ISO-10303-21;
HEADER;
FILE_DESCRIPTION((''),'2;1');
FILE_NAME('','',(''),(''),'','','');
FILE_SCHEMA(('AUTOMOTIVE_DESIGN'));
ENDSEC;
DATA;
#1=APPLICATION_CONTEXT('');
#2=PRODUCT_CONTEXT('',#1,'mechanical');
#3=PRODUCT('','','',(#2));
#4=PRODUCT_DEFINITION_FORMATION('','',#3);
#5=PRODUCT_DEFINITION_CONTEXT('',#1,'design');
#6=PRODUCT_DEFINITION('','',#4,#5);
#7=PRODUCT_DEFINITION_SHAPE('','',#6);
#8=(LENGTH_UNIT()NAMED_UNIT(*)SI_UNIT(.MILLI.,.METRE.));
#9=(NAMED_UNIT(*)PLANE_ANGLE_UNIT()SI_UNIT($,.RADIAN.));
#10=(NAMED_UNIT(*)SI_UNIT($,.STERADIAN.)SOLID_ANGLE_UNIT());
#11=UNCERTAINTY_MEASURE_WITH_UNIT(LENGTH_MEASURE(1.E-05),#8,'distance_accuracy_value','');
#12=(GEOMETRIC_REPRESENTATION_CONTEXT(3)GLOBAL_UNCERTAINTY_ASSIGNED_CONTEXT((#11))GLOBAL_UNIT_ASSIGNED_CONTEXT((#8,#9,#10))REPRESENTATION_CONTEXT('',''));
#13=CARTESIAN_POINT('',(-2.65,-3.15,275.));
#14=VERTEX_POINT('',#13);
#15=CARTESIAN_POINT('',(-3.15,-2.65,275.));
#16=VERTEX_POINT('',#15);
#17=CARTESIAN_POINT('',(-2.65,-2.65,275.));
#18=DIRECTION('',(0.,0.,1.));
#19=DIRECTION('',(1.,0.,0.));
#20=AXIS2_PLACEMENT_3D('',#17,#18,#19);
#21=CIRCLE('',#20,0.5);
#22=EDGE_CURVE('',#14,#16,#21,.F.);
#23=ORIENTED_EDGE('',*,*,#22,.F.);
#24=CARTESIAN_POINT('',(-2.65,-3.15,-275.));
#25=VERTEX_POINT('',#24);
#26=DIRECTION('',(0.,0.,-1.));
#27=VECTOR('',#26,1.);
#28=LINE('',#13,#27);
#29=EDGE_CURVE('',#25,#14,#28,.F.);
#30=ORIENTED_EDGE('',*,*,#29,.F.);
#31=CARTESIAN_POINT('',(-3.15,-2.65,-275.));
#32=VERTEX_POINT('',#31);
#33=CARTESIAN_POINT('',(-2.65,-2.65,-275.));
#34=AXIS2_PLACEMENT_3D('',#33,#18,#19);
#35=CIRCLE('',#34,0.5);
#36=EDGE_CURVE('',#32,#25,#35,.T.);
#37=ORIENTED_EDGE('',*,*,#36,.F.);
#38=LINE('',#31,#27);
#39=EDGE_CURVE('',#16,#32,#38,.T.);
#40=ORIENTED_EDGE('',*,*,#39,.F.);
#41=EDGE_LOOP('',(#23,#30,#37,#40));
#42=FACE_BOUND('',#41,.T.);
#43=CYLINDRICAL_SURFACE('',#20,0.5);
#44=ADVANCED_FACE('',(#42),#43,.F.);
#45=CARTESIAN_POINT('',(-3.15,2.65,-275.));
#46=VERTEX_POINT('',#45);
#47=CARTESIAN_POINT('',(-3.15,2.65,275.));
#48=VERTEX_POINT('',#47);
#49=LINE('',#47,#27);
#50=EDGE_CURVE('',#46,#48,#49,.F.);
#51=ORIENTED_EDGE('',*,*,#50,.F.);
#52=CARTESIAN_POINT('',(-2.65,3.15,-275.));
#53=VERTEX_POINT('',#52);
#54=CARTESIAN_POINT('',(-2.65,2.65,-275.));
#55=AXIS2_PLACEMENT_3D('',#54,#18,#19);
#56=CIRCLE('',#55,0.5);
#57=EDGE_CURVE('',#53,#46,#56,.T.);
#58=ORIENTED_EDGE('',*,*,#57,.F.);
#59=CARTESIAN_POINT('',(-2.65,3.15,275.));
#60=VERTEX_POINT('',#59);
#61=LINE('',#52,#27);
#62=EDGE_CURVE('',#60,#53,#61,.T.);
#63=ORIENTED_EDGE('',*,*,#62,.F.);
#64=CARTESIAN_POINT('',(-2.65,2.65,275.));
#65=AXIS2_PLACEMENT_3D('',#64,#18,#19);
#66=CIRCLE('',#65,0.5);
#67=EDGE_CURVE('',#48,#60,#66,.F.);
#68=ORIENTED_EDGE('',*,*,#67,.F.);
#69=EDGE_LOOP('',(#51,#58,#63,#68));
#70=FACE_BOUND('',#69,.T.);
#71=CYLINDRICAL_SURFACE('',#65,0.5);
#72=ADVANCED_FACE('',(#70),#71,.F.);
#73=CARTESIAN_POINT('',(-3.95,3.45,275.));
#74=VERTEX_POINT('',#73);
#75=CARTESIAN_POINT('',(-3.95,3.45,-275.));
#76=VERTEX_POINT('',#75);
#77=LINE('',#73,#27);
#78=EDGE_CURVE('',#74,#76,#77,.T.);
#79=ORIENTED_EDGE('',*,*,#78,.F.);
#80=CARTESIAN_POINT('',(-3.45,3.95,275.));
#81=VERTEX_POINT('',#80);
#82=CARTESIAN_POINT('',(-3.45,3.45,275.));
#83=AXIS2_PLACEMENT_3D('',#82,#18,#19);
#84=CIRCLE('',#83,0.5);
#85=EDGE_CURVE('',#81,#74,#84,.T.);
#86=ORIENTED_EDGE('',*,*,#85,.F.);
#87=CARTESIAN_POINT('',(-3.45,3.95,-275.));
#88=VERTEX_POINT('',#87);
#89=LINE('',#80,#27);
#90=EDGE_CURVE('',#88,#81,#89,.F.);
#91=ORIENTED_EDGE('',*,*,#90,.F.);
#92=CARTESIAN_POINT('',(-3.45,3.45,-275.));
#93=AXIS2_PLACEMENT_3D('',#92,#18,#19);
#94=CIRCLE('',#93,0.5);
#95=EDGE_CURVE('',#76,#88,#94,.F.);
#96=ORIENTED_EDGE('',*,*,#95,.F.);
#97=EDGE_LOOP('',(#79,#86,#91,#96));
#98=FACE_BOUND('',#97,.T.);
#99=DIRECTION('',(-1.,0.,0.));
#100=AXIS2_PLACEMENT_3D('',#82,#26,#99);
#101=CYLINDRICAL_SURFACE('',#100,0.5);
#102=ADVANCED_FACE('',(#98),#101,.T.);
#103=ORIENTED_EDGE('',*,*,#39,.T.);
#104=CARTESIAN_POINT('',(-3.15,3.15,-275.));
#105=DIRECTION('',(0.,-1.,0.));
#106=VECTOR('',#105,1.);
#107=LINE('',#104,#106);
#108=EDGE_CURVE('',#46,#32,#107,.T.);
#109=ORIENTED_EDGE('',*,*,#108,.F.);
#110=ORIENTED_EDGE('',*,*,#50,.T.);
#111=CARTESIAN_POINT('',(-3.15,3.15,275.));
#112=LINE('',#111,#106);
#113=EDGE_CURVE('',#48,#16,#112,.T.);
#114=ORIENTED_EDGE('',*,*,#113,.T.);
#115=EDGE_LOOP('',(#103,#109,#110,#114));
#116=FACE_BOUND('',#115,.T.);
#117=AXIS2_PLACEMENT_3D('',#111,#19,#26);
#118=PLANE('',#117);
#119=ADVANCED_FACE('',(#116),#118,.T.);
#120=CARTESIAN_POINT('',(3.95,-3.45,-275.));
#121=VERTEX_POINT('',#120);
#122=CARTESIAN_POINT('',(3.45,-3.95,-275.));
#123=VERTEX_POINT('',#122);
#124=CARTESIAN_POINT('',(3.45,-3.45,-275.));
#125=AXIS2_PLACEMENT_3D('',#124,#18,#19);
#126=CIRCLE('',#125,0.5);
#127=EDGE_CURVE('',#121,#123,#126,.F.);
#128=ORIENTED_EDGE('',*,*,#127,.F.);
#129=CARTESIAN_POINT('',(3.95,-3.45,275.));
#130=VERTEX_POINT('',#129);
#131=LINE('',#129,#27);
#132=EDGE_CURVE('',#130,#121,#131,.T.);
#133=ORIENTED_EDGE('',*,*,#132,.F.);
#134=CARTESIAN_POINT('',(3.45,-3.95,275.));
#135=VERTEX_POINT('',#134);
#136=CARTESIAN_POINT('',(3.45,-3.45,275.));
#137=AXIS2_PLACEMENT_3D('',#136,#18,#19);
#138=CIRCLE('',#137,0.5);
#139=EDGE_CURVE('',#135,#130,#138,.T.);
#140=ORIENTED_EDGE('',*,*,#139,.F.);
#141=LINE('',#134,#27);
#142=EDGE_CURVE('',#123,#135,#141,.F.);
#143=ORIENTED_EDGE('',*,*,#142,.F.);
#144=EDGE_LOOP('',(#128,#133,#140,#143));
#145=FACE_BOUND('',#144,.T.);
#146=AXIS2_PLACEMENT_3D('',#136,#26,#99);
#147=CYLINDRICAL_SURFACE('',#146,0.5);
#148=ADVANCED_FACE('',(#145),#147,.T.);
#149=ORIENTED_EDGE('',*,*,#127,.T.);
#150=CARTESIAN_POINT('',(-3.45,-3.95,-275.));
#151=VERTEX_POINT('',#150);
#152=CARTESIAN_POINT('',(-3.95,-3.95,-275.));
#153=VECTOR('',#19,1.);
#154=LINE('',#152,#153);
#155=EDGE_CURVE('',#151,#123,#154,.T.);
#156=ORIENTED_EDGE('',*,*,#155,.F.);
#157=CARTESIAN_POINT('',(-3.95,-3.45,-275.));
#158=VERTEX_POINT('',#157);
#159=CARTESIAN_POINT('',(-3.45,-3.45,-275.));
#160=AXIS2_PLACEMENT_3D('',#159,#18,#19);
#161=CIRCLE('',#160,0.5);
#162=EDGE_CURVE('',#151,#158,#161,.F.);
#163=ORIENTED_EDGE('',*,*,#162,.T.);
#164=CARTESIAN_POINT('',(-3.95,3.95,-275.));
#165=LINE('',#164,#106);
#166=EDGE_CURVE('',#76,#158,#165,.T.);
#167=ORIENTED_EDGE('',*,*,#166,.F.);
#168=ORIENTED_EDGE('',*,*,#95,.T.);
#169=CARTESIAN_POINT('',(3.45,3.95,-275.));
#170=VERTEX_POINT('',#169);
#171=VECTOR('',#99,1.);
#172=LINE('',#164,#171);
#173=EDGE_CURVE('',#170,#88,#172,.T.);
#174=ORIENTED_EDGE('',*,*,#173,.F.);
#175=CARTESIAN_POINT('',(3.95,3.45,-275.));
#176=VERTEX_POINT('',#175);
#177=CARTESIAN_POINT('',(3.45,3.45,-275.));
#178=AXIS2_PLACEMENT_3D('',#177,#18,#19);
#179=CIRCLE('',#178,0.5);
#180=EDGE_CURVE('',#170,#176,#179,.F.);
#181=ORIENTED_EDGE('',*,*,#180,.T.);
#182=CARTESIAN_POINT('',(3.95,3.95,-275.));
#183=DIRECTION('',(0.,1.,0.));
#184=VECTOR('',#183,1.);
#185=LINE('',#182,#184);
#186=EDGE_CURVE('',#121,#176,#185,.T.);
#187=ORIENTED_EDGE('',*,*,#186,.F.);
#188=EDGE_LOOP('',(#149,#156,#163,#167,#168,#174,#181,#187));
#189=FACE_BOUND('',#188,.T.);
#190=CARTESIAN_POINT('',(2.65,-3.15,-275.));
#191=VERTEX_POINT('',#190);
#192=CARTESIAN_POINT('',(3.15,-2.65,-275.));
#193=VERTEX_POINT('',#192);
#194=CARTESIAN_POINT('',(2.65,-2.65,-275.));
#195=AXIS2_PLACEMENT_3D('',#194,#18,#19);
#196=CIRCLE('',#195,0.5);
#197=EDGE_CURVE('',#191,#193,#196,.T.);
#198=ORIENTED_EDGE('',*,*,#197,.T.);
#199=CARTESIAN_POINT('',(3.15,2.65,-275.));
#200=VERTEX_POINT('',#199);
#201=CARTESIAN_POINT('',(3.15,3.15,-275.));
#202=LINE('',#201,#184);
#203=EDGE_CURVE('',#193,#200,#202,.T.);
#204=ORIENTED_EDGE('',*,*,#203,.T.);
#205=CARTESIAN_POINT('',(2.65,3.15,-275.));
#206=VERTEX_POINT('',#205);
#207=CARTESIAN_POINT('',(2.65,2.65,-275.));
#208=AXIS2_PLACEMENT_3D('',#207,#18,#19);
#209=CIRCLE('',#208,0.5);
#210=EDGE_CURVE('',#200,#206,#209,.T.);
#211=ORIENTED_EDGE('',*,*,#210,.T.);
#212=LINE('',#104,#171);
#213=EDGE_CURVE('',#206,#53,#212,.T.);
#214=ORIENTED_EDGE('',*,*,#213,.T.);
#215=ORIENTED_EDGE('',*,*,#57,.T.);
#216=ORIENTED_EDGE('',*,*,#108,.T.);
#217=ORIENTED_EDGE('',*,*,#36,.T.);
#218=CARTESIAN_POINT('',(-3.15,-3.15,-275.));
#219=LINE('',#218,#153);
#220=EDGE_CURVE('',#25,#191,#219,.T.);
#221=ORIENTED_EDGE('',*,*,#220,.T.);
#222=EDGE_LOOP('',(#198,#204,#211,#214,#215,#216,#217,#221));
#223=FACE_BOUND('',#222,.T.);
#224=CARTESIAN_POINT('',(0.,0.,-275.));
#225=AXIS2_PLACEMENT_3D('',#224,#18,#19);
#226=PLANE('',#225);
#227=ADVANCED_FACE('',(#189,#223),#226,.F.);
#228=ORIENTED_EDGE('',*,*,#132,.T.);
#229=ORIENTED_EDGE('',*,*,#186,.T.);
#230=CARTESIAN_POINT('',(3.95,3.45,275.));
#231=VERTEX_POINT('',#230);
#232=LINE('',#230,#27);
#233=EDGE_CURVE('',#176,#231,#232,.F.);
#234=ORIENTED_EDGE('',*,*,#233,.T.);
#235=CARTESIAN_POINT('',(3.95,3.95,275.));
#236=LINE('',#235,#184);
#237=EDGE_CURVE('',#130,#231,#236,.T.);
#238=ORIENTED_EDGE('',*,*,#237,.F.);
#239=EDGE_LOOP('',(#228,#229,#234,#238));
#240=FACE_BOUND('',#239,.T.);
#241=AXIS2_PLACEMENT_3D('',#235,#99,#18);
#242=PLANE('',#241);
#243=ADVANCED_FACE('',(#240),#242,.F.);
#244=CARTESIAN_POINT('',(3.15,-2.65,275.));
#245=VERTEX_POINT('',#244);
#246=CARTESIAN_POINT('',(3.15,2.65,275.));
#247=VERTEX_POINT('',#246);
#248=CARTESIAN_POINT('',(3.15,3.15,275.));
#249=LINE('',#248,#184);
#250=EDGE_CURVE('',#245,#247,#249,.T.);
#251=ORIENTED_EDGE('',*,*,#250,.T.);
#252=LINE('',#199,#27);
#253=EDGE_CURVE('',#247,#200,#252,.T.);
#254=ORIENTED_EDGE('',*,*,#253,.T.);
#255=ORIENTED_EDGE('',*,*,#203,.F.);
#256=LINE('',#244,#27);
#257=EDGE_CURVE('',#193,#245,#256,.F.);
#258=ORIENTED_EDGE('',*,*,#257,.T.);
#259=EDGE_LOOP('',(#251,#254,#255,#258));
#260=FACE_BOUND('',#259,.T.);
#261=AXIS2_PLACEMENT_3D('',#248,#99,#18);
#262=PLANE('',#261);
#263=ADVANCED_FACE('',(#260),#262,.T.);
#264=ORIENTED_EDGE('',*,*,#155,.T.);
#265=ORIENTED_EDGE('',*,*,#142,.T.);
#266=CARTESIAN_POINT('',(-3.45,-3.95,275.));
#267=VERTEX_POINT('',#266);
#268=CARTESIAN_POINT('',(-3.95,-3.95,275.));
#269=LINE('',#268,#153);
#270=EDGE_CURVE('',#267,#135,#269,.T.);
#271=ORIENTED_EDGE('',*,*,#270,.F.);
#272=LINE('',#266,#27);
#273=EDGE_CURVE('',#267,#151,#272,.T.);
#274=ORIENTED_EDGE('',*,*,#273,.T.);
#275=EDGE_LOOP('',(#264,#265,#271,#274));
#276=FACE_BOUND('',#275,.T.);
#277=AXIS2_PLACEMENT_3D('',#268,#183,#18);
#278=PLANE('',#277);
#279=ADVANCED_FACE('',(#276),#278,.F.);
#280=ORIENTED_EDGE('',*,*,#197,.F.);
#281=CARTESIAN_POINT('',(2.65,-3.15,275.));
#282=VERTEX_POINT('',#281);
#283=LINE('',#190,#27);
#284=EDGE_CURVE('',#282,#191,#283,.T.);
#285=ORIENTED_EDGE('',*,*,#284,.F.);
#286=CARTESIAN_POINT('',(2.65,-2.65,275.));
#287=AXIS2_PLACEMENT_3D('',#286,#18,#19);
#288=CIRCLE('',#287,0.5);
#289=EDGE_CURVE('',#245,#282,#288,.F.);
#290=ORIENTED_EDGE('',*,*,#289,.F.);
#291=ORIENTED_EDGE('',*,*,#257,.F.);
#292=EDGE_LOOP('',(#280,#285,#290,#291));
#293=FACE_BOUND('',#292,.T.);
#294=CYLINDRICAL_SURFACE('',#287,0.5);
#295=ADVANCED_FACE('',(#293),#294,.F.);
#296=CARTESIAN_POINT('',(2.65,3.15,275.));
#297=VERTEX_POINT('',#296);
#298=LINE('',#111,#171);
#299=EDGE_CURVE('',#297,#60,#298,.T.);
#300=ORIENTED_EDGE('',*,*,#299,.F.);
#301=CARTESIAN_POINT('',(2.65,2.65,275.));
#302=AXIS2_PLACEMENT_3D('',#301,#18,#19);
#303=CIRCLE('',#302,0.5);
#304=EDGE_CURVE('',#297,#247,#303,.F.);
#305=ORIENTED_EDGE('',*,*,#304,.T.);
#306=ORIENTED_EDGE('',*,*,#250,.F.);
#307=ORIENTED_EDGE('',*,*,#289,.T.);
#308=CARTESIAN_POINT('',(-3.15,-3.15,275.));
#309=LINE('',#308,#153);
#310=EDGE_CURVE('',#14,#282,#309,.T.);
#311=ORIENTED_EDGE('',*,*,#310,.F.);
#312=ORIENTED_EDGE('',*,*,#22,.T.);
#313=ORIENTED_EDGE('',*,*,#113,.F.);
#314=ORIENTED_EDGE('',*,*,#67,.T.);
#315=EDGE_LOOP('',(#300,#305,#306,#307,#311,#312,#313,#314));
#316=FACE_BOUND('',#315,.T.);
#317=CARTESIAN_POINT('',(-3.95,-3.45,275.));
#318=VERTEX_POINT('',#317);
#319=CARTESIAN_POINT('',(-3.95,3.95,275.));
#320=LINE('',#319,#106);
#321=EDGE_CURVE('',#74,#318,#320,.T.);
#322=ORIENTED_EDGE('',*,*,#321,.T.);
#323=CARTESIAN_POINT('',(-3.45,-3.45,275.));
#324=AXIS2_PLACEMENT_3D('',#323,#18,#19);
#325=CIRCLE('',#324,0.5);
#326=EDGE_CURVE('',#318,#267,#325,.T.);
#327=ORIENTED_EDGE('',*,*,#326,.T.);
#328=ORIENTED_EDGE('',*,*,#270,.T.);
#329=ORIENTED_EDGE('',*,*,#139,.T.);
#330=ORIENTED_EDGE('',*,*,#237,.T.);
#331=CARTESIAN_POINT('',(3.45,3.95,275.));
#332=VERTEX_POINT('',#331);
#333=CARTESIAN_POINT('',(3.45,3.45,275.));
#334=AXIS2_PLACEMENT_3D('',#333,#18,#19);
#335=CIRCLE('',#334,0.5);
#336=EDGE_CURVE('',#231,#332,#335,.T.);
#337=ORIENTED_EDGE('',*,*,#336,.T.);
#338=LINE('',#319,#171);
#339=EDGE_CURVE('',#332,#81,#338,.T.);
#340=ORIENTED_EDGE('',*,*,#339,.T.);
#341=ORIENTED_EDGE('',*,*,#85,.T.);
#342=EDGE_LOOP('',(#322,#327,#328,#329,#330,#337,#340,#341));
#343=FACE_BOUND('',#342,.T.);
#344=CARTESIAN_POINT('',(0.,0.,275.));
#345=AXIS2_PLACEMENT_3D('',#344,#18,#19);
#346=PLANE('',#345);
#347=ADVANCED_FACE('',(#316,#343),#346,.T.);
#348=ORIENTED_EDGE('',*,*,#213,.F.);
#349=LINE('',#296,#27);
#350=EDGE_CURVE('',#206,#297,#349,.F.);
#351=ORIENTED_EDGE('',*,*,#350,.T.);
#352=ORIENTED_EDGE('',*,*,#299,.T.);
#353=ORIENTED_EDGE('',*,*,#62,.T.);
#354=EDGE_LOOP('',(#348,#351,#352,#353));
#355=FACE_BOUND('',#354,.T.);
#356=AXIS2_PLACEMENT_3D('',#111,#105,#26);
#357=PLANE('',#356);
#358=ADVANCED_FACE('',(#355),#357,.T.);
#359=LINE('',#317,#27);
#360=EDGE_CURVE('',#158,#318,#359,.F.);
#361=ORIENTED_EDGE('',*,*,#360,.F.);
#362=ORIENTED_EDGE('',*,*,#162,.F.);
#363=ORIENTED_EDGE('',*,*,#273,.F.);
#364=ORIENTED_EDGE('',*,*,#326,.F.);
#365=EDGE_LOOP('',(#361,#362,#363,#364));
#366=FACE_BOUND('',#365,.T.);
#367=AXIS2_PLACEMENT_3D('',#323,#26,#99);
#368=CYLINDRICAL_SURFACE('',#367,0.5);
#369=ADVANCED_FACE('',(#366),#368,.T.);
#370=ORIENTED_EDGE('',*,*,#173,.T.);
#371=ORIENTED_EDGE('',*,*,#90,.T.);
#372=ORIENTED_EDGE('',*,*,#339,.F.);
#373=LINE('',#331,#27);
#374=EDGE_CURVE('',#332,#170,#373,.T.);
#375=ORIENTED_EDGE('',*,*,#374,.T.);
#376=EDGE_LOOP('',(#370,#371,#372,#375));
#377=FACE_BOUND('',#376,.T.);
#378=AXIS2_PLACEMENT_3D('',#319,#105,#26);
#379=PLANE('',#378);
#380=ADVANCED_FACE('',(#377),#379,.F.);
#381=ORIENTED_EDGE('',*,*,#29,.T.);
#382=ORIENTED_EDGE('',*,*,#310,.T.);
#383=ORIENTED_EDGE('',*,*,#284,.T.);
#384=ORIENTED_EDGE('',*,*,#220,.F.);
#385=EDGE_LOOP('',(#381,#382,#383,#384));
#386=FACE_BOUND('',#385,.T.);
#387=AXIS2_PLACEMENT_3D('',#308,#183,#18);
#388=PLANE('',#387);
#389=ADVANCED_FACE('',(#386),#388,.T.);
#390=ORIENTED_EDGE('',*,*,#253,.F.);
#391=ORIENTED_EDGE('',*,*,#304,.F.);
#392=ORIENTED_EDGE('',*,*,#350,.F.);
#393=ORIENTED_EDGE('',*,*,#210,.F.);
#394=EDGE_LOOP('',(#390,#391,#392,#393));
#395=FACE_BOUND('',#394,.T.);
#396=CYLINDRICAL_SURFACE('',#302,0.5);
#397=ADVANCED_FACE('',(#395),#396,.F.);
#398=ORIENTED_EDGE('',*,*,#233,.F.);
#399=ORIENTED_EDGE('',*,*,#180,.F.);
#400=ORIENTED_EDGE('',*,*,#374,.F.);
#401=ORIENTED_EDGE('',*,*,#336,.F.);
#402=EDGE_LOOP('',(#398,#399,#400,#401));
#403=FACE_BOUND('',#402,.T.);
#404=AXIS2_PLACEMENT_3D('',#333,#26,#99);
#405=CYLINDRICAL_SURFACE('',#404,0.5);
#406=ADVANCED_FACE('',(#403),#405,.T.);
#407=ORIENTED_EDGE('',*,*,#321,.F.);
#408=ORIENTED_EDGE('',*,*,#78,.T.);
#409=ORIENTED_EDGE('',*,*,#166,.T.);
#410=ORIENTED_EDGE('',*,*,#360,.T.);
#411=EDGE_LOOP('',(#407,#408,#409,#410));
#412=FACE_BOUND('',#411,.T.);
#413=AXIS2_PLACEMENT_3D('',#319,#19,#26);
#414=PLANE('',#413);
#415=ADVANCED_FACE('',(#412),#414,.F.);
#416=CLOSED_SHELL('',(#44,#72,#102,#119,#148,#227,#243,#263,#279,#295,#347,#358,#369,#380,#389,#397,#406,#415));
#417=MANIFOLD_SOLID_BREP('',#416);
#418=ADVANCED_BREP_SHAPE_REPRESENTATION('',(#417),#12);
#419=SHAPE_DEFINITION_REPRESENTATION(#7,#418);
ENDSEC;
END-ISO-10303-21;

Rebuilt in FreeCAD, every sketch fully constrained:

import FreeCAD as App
import Part
import Sketcher

V = App.Vector
Q = App.Units.Quantity


def edges_at(feature, points):
    """Names of the edges that pass closest to the given points."""
    edges = feature.Shape.Edges
    near = lambda p: min(range(len(edges)), key=lambda i: edges[i].distToShape(Part.Vertex(*p))[0])
    return sorted({f"Edge{near(p) + 1}" for p in points})


def add_polygon(sketch, points):
    """Adds a closed chain of lines whose ends are joined by coincident constraints."""
    first, n = sketch.GeometryCount, len(points)
    for a, b in zip(points, points[1:] + points[:1]):
        sketch.addGeometry(Part.LineSegment(App.Vector(*a, 0), App.Vector(*b, 0)), False)
    for i in range(n):
        sketch.addConstraint(Sketcher.Constraint("Coincident", first + i, 2, first + (i + 1) % n, 1))

doc = App.newDocument("Part")
body = doc.addObject("PartDesign::Body", "Body")

# Sketch on XY plane
sketch1 = body.newObject("Sketcher::SketchObject", "Sketch")
sketch1.AttachmentSupport = (doc.getObject("XY_Plane"), [""])
sketch1.MapMode = "FlatFace"
add_polygon(sketch1, [(-4, 4), (-4, -4), (4, -4), (4, 4)])  # lines 0-3
add_polygon(sketch1, [(3, -3), (-3, -3), (-3, 3), (3, 3)])  # lines 4-7
sketch1.addConstraint(Sketcher.Constraint("Vertical", 0))
sketch1.addConstraint(Sketcher.Constraint("Horizontal", 1))
sketch1.addConstraint(Sketcher.Constraint("Vertical", 2))
sketch1.addConstraint(Sketcher.Constraint("Horizontal", 3))
sketch1.addConstraint(Sketcher.Constraint("Horizontal", 4))
sketch1.addConstraint(Sketcher.Constraint("Vertical", 5))
sketch1.addConstraint(Sketcher.Constraint("Horizontal", 6))
sketch1.addConstraint(Sketcher.Constraint("Vertical", 7))
sketch1.addConstraint(Sketcher.Constraint("Symmetric", 0, 2, 2, 2, -1, 1))
sketch1.addConstraint(Sketcher.Constraint("Symmetric", 4, 2, 6, 2, -1, 1))
sketch1.addConstraint(Sketcher.Constraint("Equal", 3, 0))
sketch1.addConstraint(Sketcher.Constraint("Equal", 6, 5))
sketch1.addConstraint(Sketcher.Constraint("DistanceX", 1, 1, 1, 2, Q("7.9 mm")))
sketch1.addConstraint(Sketcher.Constraint("DistanceX", 4, 2, 4, 1, Q("6.3 mm")))
pad1 = body.newObject("PartDesign::Pad", "Pad")
pad1.Profile = sketch1
pad1.Length = 550
pad1.Midplane = True
doc.recompute()

fillet = body.newObject("PartDesign::Fillet", "Fillet")
fillet.Base = (pad1, edges_at(pad1, [
    (3.15, -3.15, 0),
    (3.15, 3.15, 0),
    (-3.15, 3.15, 0),
    (-3.15, -3.15, 0),
    (3.95, -3.95, 0),
    (-3.95, -3.95, 0),
    (-3.95, 3.95, 0),
    (3.95, 3.95, 0),
]))
fillet.Radius = 0.5

doc.recompute()
